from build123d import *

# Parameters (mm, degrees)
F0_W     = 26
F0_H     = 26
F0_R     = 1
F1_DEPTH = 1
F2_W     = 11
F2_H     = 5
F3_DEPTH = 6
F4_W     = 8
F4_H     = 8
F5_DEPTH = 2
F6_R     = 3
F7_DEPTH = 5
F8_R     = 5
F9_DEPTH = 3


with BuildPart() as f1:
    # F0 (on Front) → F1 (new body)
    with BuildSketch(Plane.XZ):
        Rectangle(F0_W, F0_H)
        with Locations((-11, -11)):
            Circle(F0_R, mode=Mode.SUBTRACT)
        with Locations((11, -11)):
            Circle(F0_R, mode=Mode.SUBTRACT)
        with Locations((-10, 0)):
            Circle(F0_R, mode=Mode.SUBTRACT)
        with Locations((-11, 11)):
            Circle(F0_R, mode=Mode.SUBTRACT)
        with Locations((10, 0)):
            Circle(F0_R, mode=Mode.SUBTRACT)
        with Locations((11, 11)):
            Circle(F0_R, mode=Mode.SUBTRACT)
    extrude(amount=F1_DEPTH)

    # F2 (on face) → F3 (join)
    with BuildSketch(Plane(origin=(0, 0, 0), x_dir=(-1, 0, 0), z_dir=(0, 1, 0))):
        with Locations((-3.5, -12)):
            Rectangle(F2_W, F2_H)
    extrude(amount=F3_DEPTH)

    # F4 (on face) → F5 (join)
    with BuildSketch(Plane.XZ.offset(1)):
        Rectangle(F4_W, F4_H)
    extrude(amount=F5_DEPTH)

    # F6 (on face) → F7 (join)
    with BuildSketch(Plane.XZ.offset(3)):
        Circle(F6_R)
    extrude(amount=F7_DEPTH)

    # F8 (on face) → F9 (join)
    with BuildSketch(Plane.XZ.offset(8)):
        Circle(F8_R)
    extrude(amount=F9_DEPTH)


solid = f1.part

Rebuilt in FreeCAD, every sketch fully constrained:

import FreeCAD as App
import Part
import Sketcher
from FreeCAD import Vector
Q = App.Units.Quantity


def add_polygon(sketch, points):
    """Adds a closed chain of lines whose ends are joined by coincident constraints."""
    first, n = sketch.GeometryCount, len(points)
    for a, b in zip(points, points[1:] + points[:1]):
        sketch.addGeometry(Part.LineSegment(App.Vector(*a, 0), App.Vector(*b, 0)), False)
    for i in range(n):
        sketch.addConstraint(Sketcher.Constraint("Coincident", first + i, 2, first + (i + 1) % n, 1))

doc = App.newDocument("Part")
body = doc.addObject("PartDesign::Body", "Body")

# Sketch on XZ plane
sketch1 = body.newObject("Sketcher::SketchObject", "Sketch")
sketch1.AttachmentSupport = (doc.getObject("XZ_Plane"), [""])
sketch1.MapMode = "FlatFace"
add_polygon(sketch1, [(-13, 13), (-13, -13), (13, -13), (13, 13)])  # lines 0-3
sketch1.addGeometry(Part.Circle(Vector(-11, -11, 0), Vector(0, 0, 1), 1), False)  # 4
sketch1.addGeometry(Part.Circle(Vector(11, -11, 0), Vector(0, 0, 1), 1), False)  # 5
sketch1.addGeometry(Part.Circle(Vector(-10, 0, 0), Vector(0, 0, 1), 1), False)  # 6
sketch1.addGeometry(Part.Circle(Vector(-11, 11, 0), Vector(0, 0, 1), 1), False)  # 7
sketch1.addGeometry(Part.Circle(Vector(10, 0, 0), Vector(0, 0, 1), 1), False)  # 8
sketch1.addGeometry(Part.Circle(Vector(11, 11, 0), Vector(0, 0, 1), 1), False)  # 9
sketch1.addConstraint(Sketcher.Constraint("Vertical", 0))
sketch1.addConstraint(Sketcher.Constraint("Horizontal", 1))
sketch1.addConstraint(Sketcher.Constraint("Vertical", 2))
sketch1.addConstraint(Sketcher.Constraint("Horizontal", 3))
sketch1.addConstraint(Sketcher.Constraint("Equal", 4, 5))
sketch1.addConstraint(Sketcher.Constraint("Equal", 5, 6))
sketch1.addConstraint(Sketcher.Constraint("Equal", 6, 7))
sketch1.addConstraint(Sketcher.Constraint("Equal", 7, 8))
sketch1.addConstraint(Sketcher.Constraint("Equal", 8, 9))
sketch1.addConstraint(Sketcher.Constraint("Symmetric", 5, 3, 7, 3, -1, 1))
sketch1.addConstraint(Sketcher.Constraint("Symmetric", 6, 3, 8, 3, -1, 1))
sketch1.addConstraint(Sketcher.Constraint("Symmetric", 4, 3, 9, 3, -1, 1))
sketch1.addConstraint(Sketcher.Constraint("Symmetric", 0, 2, 2, 2, -1, 1))
sketch1.addConstraint(Sketcher.Constraint("Symmetric", 4, 3, 5, 3, -2))
sketch1.addConstraint(Sketcher.Constraint("PointOnObject", 6, 3, -1))
sketch1.addConstraint(Sketcher.Constraint("Equal", 3, 0))
sketch1.addConstraint(Sketcher.Constraint("Diameter", 4, Q("2 mm")))
sketch1.addConstraint(Sketcher.Constraint("DistanceX", 1, 1, 1, 2, Q("26 mm")))
sketch1.addConstraint(Sketcher.Constraint("DistanceX", 4, 3, -1, 1, Q("11 mm")))
sketch1.addConstraint(Sketcher.Constraint("DistanceY", 4, 3, -1, 1, Q("11 mm")))
sketch1.addConstraint(Sketcher.Constraint("DistanceX", 6, 3, -1, 1, Q("10 mm")))
pad1 = body.newObject("PartDesign::Pad", "Pad")
pad1.Profile = sketch1
pad1.Length = 1

# Sketch on XZ plane
sketch2 = body.newObject("Sketcher::SketchObject", "Sketch001")
sketch2.AttachmentSupport = (doc.getObject("XZ_Plane"), [""])
sketch2.MapMode = "FlatFace"
add_polygon(sketch2, [(9, -10), (9, -14), (-2, -14), (-2, -10)])  # lines 0-3
sketch2.addConstraint(Sketcher.Constraint("Vertical", 0))
sketch2.addConstraint(Sketcher.Constraint("Horizontal", 1))
sketch2.addConstraint(Sketcher.Constraint("Vertical", 2))
sketch2.addConstraint(Sketcher.Constraint("Horizontal", 3))
sketch2.addConstraint(Sketcher.Constraint("DistanceX", 1, 2, 1, 1, Q("11 mm")))
sketch2.addConstraint(Sketcher.Constraint("DistanceY", 0, 2, 0, 1, Q("5 mm")))
sketch2.addConstraint(Sketcher.Constraint("DistanceX", -1, 1, 0, 2, Q("9 mm")))
sketch2.addConstraint(Sketcher.Constraint("DistanceY", 0, 2, -1, 1, Q("14.5 mm")))
pad2 = body.newObject("PartDesign::Pad", "Pad001")
pad2.Profile = sketch2
pad2.Length = 6
pad2.Reversed = True

# Sketch on XZ plane
sketch3 = body.newObject("Sketcher::SketchObject", "Sketch002")
sketch3.AttachmentSupport = (doc.getObject("XZ_Plane"), [""])
sketch3.MapMode = "FlatFace"
sketch3.AttachmentOffset = App.Placement(Vector(0, 0, 1), App.Rotation())
add_polygon(sketch3, [(-4, 4), (-4, -4), (4, -4), (4, 4)])  # lines 0-3
sketch3.addConstraint(Sketcher.Constraint("Vertical", 0))
sketch3.addConstraint(Sketcher.Constraint("Horizontal", 1))
sketch3.addConstraint(Sketcher.Constraint("Vertical", 2))
sketch3.addConstraint(Sketcher.Constraint("Horizontal", 3))
sketch3.addConstraint(Sketcher.Constraint("Symmetric", 0, 2, 2, 2, -1, 1))
sketch3.addConstraint(Sketcher.Constraint("Equal", 3, 0))
sketch3.addConstraint(Sketcher.Constraint("DistanceX", 1, 1, 1, 2, Q("8 mm")))
pad3 = body.newObject("PartDesign::Pad", "Pad002")
pad3.Profile = sketch3
pad3.Length = 2

# Sketch on XZ plane
sketch4 = body.newObject("Sketcher::SketchObject", "Sketch003")
sketch4.AttachmentSupport = (doc.getObject("XZ_Plane"), [""])
sketch4.MapMode = "FlatFace"
sketch4.AttachmentOffset = App.Placement(Vector(0, 0, 3), App.Rotation())
sketch4.addGeometry(Part.Circle(Vector(0, 0, 0), Vector(0, 0, 1), 3), False)
sketch4.addConstraint(Sketcher.Constraint("Coincident", 0, 3, -1, 1))
sketch4.addConstraint(Sketcher.Constraint("Diameter", 0, Q("6 mm")))
pad4 = body.newObject("PartDesign::Pad", "Pad003")
pad4.Profile = sketch4
pad4.Length = 5

# Sketch on XZ plane
sketch5 = body.newObject("Sketcher::SketchObject", "Sketch004")
sketch5.AttachmentSupport = (doc.getObject("XZ_Plane"), [""])
sketch5.MapMode = "FlatFace"
sketch5.AttachmentOffset = App.Placement(Vector(0, 0, 8), App.Rotation())
sketch5.addGeometry(Part.Circle(Vector(0, 0, 0), Vector(0, 0, 1), 5), False)
sketch5.addConstraint(Sketcher.Constraint("Coincident", 0, 3, -1, 1))
sketch5.addConstraint(Sketcher.Constraint("Diameter", 0, Q("10 mm")))
pad5 = body.newObject("PartDesign::Pad", "Pad004")
pad5.Profile = sketch5
pad5.Length = 3

doc.recompute()
